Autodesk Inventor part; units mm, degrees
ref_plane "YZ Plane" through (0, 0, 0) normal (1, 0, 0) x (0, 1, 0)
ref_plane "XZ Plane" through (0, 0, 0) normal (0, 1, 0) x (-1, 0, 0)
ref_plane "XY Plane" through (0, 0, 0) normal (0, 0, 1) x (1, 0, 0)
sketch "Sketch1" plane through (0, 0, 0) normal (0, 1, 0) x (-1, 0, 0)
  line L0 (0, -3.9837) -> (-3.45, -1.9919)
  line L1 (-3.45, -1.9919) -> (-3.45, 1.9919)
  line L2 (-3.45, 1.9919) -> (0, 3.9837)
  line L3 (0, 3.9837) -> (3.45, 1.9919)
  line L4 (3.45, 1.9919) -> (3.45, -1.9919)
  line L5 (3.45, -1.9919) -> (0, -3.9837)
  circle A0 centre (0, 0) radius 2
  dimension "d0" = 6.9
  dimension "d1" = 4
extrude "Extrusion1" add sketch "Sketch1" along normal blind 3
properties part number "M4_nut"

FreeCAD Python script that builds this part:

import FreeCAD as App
import Part
import Sketcher
from FreeCAD import Vector
Q = App.Units.Quantity

doc = App.newDocument("Part")
body = doc.addObject("PartDesign::Body", "Body")

sketch1 = body.newObject("Sketcher::SketchObject", "Sketch")
sketch1.AttachmentSupport = (doc.getObject("XZ_Plane"), [""])
sketch1.MapMode = "FlatFace"
sketch1.addGeometry(Part.LineSegment(Vector(3.45, -1.9919, 0), Vector(0, -3.9837, 0)), False)
sketch1.addGeometry(Part.LineSegment(Vector(0, -3.9837, 0), Vector(-3.45, -1.9919, 0)), False)
sketch1.addGeometry(Part.LineSegment(Vector(-3.45, -1.9919, 0), Vector(-3.45, 1.9919, 0)), False)
sketch1.addGeometry(Part.LineSegment(Vector(-3.45, 1.9919, 0), Vector(0, 3.9837, 0)), False)
sketch1.addGeometry(Part.LineSegment(Vector(0, 3.9837, 0), Vector(3.45, 1.9919, 0)), False)
sketch1.addGeometry(Part.LineSegment(Vector(3.45, 1.9919, 0), Vector(3.45, -1.9919, 0)), False)
sketch1.addGeometry(Part.Circle(Vector(0, 0, 0), Vector(0, 0, 1), 2), False)
sketch1.addConstraint(Sketcher.Constraint("Coincident", 0, 2, 1, 1))
sketch1.addConstraint(Sketcher.Constraint("Coincident", 1, 2, 2, 1))
sketch1.addConstraint(Sketcher.Constraint("Coincident", 2, 2, 3, 1))
sketch1.addConstraint(Sketcher.Constraint("Coincident", 3, 2, 4, 1))
sketch1.addConstraint(Sketcher.Constraint("Coincident", 4, 2, 5, 1))
sketch1.addConstraint(Sketcher.Constraint("Coincident", 5, 2, 0, 1))
sketch1.addConstraint(Sketcher.Constraint("Vertical", 2))
sketch1.addConstraint(Sketcher.Constraint("Vertical", 5))
sketch1.addConstraint(Sketcher.Constraint("Coincident", 6, 3, -1, 1))
sketch1.addConstraint(Sketcher.Constraint("Symmetric", 0, 2, 3, 2, -1, 1))
sketch1.addConstraint(Sketcher.Constraint("Symmetric", 1, 2, 4, 2, -1, 1))
sketch1.addConstraint(Sketcher.Constraint("PointOnObject", 0, 2, -2))
sketch1.addConstraint(Sketcher.Constraint("Parallel", 0, 3))
sketch1.addConstraint(Sketcher.Constraint("Horizontal", 2, 2, 4, 2))
sketch1.addConstraint(Sketcher.Constraint("Diameter", 6, 4.0))
sketch1.addConstraint(Sketcher.Constraint("DistanceX", 2, 2, 4, 2, 6.9))
sketch1.addConstraint(Sketcher.Constraint("Angle", 0, Q("-150.0007 deg")))
sketch1.addConstraint(Sketcher.Constraint("DistanceY", 2, 1, 2, 2, 3.9838))
pad1 = body.newObject("PartDesign::Pad", "Pad")
pad1.Profile = sketch1
pad1.Length = 3
pad1.Reversed = True

doc.recompute()
